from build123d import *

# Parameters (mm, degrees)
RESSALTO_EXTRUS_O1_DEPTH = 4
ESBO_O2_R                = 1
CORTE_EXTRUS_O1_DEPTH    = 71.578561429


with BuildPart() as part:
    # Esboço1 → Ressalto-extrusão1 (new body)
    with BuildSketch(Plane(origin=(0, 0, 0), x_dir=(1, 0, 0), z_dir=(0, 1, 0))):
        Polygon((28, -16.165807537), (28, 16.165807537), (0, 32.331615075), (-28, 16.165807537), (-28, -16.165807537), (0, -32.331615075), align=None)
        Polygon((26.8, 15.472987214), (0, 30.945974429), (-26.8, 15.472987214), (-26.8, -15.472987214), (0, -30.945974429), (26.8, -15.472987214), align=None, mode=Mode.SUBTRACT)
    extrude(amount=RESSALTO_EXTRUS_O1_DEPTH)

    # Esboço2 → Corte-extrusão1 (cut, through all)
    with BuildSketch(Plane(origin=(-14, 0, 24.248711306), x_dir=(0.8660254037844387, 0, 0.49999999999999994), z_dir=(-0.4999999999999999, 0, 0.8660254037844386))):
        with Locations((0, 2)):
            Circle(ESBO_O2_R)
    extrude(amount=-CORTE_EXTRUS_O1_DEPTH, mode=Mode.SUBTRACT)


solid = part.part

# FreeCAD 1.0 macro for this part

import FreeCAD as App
import Part
import Sketcher

V = App.Vector
Q = App.Units.Quantity


def add_polygon(sketch, points):
    """Adds a closed chain of lines whose ends are joined by coincident constraints."""
    first, n = sketch.GeometryCount, len(points)
    for a, b in zip(points, points[1:] + points[:1]):
        sketch.addGeometry(Part.LineSegment(App.Vector(*a, 0), App.Vector(*b, 0)), False)
    for i in range(n):
        sketch.addConstraint(Sketcher.Constraint("Coincident", first + i, 2, first + (i + 1) % n, 1))

doc = App.newDocument("Part")
body = doc.addObject("PartDesign::Body", "Body")

# Sketch on XZ plane
sketch1 = body.newObject("Sketcher::SketchObject", "Sketch")
sketch1.AttachmentSupport = (doc.getObject("XZ_Plane"), [""])
sketch1.MapMode = "FlatFace"
add_polygon(sketch1, [(28, 16), (28, -16), (0, -32), (-28, -16), (-28, 16), (0, 32)])  # lines 0-5
add_polygon(sketch1, [(0, -31), (27, -15), (27, 15), (0, 31), (-27, 15), (-27, -15)])  # lines 6-11
sketch1.addConstraint([
    Sketcher.Constraint("Vertical", 0),
    Sketcher.Constraint("Vertical", 3),
    Sketcher.Constraint("Vertical", 7),
    Sketcher.Constraint("Vertical", 10),
    Sketcher.Constraint("Symmetric", 0, 2, 3, 2, -1, 1),
    Sketcher.Constraint("Symmetric", 1, 2, 4, 2, -1, 1),
    Sketcher.Constraint("Symmetric", 6, 2, 9, 2, -1, 1),
    Sketcher.Constraint("Symmetric", 8, 2, 11, 2, -1, 1),
    Sketcher.Constraint("PointOnObject", 1, 2, -2),
    Sketcher.Constraint("PointOnObject", 8, 2, -2),
    Sketcher.Constraint("Parallel", 2, 5),
    Sketcher.Constraint("Parallel", 4, 6),
    Sketcher.Constraint("Parallel", 5, 8),
    Sketcher.Constraint("Parallel", 8, 11),
    Sketcher.Constraint("Horizontal", 0, 2, 2, 2),
    Sketcher.Constraint("Angle", 1, Q("-150 deg")),
    Sketcher.Constraint("DistanceX", -1, 1, 0, 2, Q("28 mm")),
    Sketcher.Constraint("DistanceX", -1, 1, 6, 2, Q("26.8 mm")),
    Sketcher.Constraint("DistanceY", 0, 2, 0, 1, Q("32.331615 mm")),
    Sketcher.Constraint("DistanceY", 7, 1, 7, 2, Q("30.945974 mm")),
])
pad1 = body.newObject("PartDesign::Pad", "Pad")
pad1.Profile = sketch1
pad1.Length = 4
pad1.Reversed = True

# Sketch on an angled plane
sketch2 = body.newObject("Sketcher::SketchObject", "Sketch001")
sketch2.Placement = App.Placement(V(-14, 0, 24.248711), App.Rotation(V(0.866025404, 0, 0.5), V(0, 1, 0), V(-0.5, 0, 0.866025404), "ZXY"))
sketch2.addGeometry(Part.Circle(V(0, 2, 0), V(0, 0, 1), 1), False)
sketch2.addConstraint([
    Sketcher.Constraint("PointOnObject", 0, 3, -2),
    Sketcher.Constraint("Diameter", 0, Q("2 mm")),
    Sketcher.Constraint("DistanceY", -1, 1, 0, 3, Q("2 mm")),
])
pocket1 = body.newObject("PartDesign::Pocket", "Pocket")
pocket1.Profile = sketch2
pocket1.Type = "ThroughAll"

doc.recompute()
